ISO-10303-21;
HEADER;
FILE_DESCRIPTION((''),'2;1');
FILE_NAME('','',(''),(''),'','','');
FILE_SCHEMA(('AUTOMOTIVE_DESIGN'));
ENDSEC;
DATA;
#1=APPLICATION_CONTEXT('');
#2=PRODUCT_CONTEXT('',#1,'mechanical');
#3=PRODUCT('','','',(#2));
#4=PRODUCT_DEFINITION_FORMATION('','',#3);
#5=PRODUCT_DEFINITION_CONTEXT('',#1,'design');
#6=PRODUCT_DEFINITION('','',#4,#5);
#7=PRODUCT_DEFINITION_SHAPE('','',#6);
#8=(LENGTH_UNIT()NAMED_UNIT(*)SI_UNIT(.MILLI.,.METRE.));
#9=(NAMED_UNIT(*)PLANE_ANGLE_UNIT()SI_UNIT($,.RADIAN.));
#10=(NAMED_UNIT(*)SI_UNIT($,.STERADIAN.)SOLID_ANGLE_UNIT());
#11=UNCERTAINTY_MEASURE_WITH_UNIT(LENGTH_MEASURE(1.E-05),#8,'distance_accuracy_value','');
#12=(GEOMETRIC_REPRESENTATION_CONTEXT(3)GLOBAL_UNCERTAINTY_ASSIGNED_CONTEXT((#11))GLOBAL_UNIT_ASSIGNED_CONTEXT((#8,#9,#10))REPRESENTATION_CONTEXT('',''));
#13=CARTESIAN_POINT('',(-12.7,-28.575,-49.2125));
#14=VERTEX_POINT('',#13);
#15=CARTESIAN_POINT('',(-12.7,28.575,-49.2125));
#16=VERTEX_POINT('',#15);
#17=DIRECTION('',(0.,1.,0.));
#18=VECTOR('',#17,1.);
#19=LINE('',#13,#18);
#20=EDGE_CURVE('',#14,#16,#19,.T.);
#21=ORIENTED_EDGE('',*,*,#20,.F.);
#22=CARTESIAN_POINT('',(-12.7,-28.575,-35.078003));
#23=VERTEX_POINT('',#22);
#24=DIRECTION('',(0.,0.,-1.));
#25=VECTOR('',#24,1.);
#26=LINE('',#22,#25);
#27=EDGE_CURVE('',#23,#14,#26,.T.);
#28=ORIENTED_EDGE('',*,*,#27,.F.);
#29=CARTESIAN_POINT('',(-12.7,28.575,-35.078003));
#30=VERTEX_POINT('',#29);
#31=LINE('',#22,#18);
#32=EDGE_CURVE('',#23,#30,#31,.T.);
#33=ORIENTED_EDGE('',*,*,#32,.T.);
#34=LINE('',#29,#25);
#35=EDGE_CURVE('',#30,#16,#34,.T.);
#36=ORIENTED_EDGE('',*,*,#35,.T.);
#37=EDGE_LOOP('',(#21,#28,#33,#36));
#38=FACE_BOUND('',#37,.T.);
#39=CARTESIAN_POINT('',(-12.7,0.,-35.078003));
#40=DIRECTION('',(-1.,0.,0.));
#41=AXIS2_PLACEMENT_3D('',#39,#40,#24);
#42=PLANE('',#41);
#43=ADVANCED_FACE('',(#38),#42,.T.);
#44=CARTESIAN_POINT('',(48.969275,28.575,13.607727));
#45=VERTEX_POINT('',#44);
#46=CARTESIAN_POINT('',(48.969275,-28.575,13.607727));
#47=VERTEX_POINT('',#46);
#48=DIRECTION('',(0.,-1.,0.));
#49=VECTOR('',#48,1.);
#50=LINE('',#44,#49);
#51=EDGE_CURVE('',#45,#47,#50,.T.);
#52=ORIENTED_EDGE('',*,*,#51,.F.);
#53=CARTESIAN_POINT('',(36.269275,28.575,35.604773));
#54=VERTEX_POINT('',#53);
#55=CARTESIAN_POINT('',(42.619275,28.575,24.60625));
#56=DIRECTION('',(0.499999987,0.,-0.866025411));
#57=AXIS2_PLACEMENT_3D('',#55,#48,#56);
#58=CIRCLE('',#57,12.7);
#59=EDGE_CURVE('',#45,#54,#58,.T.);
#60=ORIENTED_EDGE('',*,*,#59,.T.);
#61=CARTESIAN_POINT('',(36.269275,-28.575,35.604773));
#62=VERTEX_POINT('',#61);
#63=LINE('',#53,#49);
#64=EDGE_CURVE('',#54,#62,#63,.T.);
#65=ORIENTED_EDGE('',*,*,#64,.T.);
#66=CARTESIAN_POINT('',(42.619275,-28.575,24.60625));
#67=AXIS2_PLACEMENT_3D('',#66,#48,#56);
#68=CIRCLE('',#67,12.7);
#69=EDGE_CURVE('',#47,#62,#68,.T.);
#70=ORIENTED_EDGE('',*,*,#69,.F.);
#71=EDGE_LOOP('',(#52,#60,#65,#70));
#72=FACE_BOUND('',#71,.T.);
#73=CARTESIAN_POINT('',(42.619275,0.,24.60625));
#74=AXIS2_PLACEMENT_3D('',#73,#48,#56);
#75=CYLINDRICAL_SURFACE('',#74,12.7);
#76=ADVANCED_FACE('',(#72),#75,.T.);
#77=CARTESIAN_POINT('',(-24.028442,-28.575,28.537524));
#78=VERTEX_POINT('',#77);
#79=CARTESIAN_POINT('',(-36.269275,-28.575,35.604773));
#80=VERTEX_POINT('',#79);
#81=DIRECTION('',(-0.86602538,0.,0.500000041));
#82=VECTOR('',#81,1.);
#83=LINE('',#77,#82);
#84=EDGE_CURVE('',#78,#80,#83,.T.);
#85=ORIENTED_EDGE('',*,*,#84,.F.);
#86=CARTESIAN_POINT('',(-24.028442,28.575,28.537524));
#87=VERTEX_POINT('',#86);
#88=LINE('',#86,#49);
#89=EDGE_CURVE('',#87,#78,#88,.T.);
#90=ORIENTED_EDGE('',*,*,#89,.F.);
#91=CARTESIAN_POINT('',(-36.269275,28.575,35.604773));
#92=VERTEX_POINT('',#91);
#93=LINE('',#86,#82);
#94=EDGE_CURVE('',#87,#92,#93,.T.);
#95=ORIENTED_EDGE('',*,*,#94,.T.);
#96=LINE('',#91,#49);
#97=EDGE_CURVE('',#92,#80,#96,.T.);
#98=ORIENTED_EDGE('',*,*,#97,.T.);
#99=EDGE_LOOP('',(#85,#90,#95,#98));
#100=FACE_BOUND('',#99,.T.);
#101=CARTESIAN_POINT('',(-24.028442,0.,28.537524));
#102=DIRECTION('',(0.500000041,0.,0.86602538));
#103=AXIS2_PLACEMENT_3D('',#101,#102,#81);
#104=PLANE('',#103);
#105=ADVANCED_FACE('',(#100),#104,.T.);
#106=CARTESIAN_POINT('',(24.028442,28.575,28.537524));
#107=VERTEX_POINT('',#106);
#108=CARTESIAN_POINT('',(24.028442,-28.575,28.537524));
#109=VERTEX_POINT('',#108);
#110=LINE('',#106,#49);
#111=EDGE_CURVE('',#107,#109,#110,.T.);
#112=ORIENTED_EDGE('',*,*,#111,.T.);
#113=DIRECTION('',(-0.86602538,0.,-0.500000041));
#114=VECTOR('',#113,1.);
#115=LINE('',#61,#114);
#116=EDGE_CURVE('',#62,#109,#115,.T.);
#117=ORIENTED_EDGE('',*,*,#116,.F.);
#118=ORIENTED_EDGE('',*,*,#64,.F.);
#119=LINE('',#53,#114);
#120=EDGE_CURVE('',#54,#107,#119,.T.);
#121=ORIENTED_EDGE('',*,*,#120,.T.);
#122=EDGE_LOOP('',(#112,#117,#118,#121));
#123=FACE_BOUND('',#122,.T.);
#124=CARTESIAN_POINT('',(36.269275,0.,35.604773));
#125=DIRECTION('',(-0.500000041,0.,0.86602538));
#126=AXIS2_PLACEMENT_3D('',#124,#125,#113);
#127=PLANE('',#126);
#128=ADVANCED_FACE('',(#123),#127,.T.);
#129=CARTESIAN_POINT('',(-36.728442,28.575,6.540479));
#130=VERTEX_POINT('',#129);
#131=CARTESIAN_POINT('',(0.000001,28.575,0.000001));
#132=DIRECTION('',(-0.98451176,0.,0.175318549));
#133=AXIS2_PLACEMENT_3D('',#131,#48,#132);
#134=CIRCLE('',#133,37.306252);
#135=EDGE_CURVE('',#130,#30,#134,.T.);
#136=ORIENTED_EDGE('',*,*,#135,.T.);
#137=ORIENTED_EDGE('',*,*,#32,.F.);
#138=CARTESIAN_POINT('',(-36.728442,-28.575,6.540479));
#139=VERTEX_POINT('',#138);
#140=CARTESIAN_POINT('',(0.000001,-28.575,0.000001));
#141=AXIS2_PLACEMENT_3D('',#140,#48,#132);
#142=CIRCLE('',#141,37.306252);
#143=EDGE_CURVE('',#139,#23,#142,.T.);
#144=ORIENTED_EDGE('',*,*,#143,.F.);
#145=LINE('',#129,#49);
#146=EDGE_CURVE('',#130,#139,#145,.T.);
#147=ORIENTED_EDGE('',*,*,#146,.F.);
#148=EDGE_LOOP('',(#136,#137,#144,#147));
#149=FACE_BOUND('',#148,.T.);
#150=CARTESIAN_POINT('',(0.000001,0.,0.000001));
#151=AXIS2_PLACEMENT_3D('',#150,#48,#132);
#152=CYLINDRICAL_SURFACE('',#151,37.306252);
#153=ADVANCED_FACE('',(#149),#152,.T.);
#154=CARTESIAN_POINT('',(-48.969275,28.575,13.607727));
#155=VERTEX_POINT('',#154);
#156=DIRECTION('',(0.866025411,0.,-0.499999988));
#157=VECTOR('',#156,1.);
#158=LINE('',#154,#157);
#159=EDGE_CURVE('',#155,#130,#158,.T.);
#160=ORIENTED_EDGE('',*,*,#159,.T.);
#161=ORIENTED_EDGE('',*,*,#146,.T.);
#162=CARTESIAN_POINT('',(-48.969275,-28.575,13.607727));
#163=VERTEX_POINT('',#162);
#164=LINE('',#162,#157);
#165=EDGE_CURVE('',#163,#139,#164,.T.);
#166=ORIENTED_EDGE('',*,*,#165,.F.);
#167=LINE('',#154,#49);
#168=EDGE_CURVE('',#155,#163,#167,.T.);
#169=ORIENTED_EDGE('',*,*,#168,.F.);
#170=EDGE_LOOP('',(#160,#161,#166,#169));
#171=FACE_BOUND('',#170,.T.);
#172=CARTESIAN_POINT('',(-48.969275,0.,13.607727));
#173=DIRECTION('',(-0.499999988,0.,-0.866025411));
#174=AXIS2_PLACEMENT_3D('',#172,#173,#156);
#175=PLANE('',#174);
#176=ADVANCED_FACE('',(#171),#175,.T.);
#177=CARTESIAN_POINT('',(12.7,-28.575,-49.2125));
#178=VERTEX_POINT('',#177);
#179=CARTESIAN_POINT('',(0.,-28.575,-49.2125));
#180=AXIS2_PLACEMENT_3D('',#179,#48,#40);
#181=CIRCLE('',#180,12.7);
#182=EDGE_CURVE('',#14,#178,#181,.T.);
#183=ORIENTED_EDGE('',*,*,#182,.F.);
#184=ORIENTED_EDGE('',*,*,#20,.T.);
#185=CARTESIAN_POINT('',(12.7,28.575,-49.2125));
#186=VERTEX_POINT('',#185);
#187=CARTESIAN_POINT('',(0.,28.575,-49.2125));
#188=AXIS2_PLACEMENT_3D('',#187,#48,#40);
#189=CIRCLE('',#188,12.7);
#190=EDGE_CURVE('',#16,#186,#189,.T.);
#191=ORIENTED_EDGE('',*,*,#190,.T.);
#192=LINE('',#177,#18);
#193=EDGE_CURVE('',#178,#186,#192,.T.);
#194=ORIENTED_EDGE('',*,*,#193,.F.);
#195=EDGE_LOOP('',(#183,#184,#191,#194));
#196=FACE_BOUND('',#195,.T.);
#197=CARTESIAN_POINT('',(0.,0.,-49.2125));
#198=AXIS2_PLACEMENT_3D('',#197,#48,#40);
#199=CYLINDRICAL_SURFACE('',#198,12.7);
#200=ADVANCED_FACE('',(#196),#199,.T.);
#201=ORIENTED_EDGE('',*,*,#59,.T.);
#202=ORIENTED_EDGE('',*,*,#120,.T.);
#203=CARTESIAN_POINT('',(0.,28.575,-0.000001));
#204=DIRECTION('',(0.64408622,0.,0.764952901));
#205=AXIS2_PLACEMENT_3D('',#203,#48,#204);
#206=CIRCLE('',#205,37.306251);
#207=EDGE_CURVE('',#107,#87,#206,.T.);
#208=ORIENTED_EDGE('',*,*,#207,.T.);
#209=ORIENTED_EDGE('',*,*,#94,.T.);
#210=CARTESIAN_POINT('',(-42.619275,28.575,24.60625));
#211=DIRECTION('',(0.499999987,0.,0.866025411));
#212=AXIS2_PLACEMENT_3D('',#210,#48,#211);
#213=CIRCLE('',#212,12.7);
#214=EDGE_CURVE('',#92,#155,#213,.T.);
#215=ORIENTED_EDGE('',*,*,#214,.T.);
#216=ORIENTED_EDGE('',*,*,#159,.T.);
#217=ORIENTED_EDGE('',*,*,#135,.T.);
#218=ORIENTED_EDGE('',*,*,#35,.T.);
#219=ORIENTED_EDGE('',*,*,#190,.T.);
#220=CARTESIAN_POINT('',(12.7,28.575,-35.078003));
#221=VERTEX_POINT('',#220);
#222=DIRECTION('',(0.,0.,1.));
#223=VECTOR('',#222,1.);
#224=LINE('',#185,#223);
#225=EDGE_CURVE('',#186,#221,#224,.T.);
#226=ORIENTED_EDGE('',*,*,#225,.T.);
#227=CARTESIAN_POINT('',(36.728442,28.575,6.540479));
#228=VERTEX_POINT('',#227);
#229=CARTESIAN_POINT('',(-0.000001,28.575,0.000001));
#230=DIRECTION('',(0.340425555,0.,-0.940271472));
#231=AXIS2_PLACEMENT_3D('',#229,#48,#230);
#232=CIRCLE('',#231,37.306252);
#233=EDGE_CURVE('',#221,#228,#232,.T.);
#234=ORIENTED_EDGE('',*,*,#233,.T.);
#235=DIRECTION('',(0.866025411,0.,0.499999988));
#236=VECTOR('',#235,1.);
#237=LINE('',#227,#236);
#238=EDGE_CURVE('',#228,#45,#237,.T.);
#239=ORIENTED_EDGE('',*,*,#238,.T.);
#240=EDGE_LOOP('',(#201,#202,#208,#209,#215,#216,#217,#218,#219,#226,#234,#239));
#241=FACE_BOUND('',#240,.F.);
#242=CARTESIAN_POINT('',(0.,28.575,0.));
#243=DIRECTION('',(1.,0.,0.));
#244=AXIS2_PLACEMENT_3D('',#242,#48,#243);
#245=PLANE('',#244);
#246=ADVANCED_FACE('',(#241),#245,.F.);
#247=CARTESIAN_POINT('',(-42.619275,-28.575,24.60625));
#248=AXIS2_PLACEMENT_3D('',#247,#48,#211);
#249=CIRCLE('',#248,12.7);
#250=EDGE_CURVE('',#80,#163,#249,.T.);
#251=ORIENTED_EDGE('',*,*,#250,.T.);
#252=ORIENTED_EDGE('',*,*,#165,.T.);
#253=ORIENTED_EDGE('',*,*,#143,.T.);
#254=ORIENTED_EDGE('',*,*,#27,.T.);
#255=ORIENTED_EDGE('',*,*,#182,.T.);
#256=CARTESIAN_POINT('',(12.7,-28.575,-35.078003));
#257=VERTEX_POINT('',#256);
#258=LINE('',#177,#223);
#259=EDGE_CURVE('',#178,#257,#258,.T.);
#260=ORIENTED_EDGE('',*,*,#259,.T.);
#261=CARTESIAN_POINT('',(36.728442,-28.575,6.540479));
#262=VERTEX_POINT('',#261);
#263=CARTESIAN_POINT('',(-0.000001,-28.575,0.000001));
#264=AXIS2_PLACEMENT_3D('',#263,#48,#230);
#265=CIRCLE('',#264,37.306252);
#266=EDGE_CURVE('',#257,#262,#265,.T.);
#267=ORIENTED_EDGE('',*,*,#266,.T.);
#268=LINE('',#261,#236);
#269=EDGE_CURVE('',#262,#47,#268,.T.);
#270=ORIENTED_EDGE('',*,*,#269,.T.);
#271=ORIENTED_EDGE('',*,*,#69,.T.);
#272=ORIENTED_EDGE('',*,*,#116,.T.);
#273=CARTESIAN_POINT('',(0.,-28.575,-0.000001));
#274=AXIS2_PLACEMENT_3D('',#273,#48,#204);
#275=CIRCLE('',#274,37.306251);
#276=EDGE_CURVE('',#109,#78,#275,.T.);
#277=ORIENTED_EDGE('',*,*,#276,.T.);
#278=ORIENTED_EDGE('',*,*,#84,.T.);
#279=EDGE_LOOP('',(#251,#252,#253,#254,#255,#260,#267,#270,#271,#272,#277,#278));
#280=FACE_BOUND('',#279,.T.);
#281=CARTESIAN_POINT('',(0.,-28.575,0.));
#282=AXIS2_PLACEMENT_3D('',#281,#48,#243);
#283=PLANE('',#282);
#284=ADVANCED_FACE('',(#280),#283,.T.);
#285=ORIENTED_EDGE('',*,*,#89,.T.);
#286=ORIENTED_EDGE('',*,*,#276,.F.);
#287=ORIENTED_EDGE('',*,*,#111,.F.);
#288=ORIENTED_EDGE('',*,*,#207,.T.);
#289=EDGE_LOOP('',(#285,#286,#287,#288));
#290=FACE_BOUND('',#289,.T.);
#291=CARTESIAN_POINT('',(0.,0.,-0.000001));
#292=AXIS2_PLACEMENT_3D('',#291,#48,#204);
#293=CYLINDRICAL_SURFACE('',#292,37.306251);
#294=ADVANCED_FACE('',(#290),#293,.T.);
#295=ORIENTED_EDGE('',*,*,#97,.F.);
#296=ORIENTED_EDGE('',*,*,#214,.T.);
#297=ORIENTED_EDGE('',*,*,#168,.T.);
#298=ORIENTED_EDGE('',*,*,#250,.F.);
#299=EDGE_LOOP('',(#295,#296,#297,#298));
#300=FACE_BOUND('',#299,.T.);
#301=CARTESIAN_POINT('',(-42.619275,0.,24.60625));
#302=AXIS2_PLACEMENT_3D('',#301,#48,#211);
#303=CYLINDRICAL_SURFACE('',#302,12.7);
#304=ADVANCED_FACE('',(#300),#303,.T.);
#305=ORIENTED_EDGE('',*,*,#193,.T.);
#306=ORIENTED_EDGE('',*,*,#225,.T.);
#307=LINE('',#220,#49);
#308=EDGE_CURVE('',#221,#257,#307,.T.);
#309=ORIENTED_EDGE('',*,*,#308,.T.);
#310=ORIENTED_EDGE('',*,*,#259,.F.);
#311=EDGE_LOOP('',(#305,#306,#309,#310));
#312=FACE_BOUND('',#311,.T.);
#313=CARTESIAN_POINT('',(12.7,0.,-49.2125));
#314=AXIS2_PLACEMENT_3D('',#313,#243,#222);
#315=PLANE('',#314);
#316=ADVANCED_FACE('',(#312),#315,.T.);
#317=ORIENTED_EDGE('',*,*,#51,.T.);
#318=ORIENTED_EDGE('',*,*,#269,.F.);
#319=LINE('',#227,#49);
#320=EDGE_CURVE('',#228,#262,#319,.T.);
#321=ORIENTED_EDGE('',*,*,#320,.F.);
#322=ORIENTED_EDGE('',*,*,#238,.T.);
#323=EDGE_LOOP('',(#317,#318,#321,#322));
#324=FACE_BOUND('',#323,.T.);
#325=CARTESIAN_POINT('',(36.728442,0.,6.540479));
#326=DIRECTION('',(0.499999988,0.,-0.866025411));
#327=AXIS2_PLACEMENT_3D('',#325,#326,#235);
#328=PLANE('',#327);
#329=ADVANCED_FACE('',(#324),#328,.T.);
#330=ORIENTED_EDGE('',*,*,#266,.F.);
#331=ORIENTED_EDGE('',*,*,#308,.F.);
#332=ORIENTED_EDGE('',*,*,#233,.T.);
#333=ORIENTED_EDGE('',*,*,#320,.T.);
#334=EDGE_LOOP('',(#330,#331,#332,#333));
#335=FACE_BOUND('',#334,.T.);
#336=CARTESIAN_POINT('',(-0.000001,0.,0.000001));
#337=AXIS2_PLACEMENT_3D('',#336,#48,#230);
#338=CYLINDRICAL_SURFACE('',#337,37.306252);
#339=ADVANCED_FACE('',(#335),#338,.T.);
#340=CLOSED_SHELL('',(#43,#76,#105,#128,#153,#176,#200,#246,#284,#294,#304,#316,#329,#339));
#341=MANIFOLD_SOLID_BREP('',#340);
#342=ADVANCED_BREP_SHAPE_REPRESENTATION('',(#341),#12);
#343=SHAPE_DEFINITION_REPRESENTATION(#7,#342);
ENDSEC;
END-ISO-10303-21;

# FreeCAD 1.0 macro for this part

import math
import FreeCAD as App
import Part
import Sketcher

V = App.Vector
Q = App.Units.Quantity

doc = App.newDocument("Part")
body = doc.addObject("PartDesign::Body", "Body")

# Sketch on XZ plane
sketch1 = body.newObject("Sketcher::SketchObject", "Sketch")
sketch1.AttachmentSupport = (doc.getObject("XZ_Plane"), [""])
sketch1.MapMode = "FlatFace"
sketch1.addGeometry(Part.LineSegment(V(12.7, -49.2125, 0), V(12.7, -35.078003, 0)), False)
sketch1.addGeometry(Part.ArcOfCircle(Part.Circle(V(-0.000001, 0.000001, 0), V(0, 0, 1), 37.306252), math.radians(-70.097197), math.radians(10.097196)), False)
sketch1.addGeometry(Part.LineSegment(V(36.728442, 6.540479, 0), V(48.969275, 13.607727, 0)), False)
sketch1.addGeometry(Part.ArcOfCircle(Part.Circle(V(42.619275, 24.60625, 0), V(0, 0, 1), 12.7), math.radians(-60.000001), math.radians(119.999999)), False)
sketch1.addGeometry(Part.LineSegment(V(36.269275, 35.604773, 0), V(24.028442, 28.537524, 0)), False)
sketch1.addGeometry(Part.ArcOfCircle(Part.Circle(V(0, -0.000001, 0), V(0, 0, 1), 37.306251), math.radians(49.902802), math.radians(130.097198)), False)
sketch1.addGeometry(Part.LineSegment(V(-24.028442, 28.537524, 0), V(-36.269275, 35.604773, 0)), False)
sketch1.addGeometry(Part.ArcOfCircle(Part.Circle(V(-42.619275, 24.60625, 0), V(0, 0, 1), 12.7), math.radians(60.000001), math.radians(240.000001)), False)
sketch1.addGeometry(Part.LineSegment(V(-48.969275, 13.607727, 0), V(-36.728442, 6.540479, 0)), False)
sketch1.addGeometry(Part.ArcOfCircle(Part.Circle(V(0.000001, 0.000001, 0), V(0, 0, 1), 37.306252), math.radians(169.902804), math.radians(250.097197)), False)
sketch1.addGeometry(Part.LineSegment(V(-12.7, -35.078003, 0), V(-12.7, -49.2125, 0)), False)
sketch1.addGeometry(Part.ArcOfCircle(Part.Circle(V(0, -49.2125, 0), V(0, 0, 1), 12.7), math.radians(180), math.radians(360)), False)
sketch1.addConstraint(Sketcher.Constraint("Coincident", 0, 2, 1, 1))
sketch1.addConstraint(Sketcher.Constraint("Coincident", 1, 2, 2, 1))
sketch1.addConstraint(Sketcher.Constraint("Tangent", 2, 2, 3, 1))
sketch1.addConstraint(Sketcher.Constraint("Tangent", 3, 2, 4, 1))
sketch1.addConstraint(Sketcher.Constraint("Coincident", 4, 2, 5, 1))
sketch1.addConstraint(Sketcher.Constraint("Coincident", 5, 2, 6, 1))
sketch1.addConstraint(Sketcher.Constraint("Tangent", 6, 2, 7, 1))
sketch1.addConstraint(Sketcher.Constraint("Tangent", 7, 2, 8, 1))
sketch1.addConstraint(Sketcher.Constraint("Coincident", 8, 2, 9, 1))
sketch1.addConstraint(Sketcher.Constraint("Coincident", 9, 2, 10, 1))
sketch1.addConstraint(Sketcher.Constraint("Tangent", 10, 2, 11, 1))
sketch1.addConstraint(Sketcher.Constraint("Tangent", 11, 2, 0, 1))
sketch1.addConstraint(Sketcher.Constraint("Vertical", 0))
sketch1.addConstraint(Sketcher.Constraint("Vertical", 10))
sketch1.addConstraint(Sketcher.Constraint("Coincident", 1, 3, -1, 1))
sketch1.addConstraint(Sketcher.Constraint("Coincident", 5, 3, -1, 1))
sketch1.addConstraint(Sketcher.Constraint("Coincident", 9, 3, -1, 1))
sketch1.addConstraint(Sketcher.Constraint("Equal", 1, 5))
sketch1.addConstraint(Sketcher.Constraint("Equal", 3, 7))
sketch1.addConstraint(Sketcher.Constraint("Equal", 5, 9))
sketch1.addConstraint(Sketcher.Constraint("Equal", 7, 11))
sketch1.addConstraint(Sketcher.Constraint("Symmetric", 3, 3, 7, 3, -2))
sketch1.addConstraint(Sketcher.Constraint("PointOnObject", 11, 3, -2))
sketch1.addConstraint(Sketcher.Constraint("Parallel", 2, 4))
sketch1.addConstraint(Sketcher.Constraint("Parallel", 6, 8))
sketch1.addConstraint(Sketcher.Constraint("Horizontal", 4, 2, 5, 2))
sketch1.addConstraint(Sketcher.Constraint("Equal", 2, 4))
sketch1.addConstraint(Sketcher.Constraint("Radius", 3, Q("0.5 in")))
sketch1.addConstraint(Sketcher.Constraint("Angle", 2, Q("29.999999 deg")))
sketch1.addConstraint(Sketcher.Constraint("Radius", 1, Q("1.4687501 in")))
sketch1.addConstraint(Sketcher.Constraint("DistanceY", -1, 1, 3, 3, Q("0.96875 in")))
sketch1.addConstraint(Sketcher.Constraint("DistanceY", 11, 3, -1, 1, Q("1.9375 in")))
pad1 = body.newObject("PartDesign::Pad", "Pad")
pad1.Profile = sketch1
pad1.Type = "TwoLengths"
pad1.Length = Q("1.125 in")
pad1.Length2 = Q("1.125 in")

doc.recompute()
